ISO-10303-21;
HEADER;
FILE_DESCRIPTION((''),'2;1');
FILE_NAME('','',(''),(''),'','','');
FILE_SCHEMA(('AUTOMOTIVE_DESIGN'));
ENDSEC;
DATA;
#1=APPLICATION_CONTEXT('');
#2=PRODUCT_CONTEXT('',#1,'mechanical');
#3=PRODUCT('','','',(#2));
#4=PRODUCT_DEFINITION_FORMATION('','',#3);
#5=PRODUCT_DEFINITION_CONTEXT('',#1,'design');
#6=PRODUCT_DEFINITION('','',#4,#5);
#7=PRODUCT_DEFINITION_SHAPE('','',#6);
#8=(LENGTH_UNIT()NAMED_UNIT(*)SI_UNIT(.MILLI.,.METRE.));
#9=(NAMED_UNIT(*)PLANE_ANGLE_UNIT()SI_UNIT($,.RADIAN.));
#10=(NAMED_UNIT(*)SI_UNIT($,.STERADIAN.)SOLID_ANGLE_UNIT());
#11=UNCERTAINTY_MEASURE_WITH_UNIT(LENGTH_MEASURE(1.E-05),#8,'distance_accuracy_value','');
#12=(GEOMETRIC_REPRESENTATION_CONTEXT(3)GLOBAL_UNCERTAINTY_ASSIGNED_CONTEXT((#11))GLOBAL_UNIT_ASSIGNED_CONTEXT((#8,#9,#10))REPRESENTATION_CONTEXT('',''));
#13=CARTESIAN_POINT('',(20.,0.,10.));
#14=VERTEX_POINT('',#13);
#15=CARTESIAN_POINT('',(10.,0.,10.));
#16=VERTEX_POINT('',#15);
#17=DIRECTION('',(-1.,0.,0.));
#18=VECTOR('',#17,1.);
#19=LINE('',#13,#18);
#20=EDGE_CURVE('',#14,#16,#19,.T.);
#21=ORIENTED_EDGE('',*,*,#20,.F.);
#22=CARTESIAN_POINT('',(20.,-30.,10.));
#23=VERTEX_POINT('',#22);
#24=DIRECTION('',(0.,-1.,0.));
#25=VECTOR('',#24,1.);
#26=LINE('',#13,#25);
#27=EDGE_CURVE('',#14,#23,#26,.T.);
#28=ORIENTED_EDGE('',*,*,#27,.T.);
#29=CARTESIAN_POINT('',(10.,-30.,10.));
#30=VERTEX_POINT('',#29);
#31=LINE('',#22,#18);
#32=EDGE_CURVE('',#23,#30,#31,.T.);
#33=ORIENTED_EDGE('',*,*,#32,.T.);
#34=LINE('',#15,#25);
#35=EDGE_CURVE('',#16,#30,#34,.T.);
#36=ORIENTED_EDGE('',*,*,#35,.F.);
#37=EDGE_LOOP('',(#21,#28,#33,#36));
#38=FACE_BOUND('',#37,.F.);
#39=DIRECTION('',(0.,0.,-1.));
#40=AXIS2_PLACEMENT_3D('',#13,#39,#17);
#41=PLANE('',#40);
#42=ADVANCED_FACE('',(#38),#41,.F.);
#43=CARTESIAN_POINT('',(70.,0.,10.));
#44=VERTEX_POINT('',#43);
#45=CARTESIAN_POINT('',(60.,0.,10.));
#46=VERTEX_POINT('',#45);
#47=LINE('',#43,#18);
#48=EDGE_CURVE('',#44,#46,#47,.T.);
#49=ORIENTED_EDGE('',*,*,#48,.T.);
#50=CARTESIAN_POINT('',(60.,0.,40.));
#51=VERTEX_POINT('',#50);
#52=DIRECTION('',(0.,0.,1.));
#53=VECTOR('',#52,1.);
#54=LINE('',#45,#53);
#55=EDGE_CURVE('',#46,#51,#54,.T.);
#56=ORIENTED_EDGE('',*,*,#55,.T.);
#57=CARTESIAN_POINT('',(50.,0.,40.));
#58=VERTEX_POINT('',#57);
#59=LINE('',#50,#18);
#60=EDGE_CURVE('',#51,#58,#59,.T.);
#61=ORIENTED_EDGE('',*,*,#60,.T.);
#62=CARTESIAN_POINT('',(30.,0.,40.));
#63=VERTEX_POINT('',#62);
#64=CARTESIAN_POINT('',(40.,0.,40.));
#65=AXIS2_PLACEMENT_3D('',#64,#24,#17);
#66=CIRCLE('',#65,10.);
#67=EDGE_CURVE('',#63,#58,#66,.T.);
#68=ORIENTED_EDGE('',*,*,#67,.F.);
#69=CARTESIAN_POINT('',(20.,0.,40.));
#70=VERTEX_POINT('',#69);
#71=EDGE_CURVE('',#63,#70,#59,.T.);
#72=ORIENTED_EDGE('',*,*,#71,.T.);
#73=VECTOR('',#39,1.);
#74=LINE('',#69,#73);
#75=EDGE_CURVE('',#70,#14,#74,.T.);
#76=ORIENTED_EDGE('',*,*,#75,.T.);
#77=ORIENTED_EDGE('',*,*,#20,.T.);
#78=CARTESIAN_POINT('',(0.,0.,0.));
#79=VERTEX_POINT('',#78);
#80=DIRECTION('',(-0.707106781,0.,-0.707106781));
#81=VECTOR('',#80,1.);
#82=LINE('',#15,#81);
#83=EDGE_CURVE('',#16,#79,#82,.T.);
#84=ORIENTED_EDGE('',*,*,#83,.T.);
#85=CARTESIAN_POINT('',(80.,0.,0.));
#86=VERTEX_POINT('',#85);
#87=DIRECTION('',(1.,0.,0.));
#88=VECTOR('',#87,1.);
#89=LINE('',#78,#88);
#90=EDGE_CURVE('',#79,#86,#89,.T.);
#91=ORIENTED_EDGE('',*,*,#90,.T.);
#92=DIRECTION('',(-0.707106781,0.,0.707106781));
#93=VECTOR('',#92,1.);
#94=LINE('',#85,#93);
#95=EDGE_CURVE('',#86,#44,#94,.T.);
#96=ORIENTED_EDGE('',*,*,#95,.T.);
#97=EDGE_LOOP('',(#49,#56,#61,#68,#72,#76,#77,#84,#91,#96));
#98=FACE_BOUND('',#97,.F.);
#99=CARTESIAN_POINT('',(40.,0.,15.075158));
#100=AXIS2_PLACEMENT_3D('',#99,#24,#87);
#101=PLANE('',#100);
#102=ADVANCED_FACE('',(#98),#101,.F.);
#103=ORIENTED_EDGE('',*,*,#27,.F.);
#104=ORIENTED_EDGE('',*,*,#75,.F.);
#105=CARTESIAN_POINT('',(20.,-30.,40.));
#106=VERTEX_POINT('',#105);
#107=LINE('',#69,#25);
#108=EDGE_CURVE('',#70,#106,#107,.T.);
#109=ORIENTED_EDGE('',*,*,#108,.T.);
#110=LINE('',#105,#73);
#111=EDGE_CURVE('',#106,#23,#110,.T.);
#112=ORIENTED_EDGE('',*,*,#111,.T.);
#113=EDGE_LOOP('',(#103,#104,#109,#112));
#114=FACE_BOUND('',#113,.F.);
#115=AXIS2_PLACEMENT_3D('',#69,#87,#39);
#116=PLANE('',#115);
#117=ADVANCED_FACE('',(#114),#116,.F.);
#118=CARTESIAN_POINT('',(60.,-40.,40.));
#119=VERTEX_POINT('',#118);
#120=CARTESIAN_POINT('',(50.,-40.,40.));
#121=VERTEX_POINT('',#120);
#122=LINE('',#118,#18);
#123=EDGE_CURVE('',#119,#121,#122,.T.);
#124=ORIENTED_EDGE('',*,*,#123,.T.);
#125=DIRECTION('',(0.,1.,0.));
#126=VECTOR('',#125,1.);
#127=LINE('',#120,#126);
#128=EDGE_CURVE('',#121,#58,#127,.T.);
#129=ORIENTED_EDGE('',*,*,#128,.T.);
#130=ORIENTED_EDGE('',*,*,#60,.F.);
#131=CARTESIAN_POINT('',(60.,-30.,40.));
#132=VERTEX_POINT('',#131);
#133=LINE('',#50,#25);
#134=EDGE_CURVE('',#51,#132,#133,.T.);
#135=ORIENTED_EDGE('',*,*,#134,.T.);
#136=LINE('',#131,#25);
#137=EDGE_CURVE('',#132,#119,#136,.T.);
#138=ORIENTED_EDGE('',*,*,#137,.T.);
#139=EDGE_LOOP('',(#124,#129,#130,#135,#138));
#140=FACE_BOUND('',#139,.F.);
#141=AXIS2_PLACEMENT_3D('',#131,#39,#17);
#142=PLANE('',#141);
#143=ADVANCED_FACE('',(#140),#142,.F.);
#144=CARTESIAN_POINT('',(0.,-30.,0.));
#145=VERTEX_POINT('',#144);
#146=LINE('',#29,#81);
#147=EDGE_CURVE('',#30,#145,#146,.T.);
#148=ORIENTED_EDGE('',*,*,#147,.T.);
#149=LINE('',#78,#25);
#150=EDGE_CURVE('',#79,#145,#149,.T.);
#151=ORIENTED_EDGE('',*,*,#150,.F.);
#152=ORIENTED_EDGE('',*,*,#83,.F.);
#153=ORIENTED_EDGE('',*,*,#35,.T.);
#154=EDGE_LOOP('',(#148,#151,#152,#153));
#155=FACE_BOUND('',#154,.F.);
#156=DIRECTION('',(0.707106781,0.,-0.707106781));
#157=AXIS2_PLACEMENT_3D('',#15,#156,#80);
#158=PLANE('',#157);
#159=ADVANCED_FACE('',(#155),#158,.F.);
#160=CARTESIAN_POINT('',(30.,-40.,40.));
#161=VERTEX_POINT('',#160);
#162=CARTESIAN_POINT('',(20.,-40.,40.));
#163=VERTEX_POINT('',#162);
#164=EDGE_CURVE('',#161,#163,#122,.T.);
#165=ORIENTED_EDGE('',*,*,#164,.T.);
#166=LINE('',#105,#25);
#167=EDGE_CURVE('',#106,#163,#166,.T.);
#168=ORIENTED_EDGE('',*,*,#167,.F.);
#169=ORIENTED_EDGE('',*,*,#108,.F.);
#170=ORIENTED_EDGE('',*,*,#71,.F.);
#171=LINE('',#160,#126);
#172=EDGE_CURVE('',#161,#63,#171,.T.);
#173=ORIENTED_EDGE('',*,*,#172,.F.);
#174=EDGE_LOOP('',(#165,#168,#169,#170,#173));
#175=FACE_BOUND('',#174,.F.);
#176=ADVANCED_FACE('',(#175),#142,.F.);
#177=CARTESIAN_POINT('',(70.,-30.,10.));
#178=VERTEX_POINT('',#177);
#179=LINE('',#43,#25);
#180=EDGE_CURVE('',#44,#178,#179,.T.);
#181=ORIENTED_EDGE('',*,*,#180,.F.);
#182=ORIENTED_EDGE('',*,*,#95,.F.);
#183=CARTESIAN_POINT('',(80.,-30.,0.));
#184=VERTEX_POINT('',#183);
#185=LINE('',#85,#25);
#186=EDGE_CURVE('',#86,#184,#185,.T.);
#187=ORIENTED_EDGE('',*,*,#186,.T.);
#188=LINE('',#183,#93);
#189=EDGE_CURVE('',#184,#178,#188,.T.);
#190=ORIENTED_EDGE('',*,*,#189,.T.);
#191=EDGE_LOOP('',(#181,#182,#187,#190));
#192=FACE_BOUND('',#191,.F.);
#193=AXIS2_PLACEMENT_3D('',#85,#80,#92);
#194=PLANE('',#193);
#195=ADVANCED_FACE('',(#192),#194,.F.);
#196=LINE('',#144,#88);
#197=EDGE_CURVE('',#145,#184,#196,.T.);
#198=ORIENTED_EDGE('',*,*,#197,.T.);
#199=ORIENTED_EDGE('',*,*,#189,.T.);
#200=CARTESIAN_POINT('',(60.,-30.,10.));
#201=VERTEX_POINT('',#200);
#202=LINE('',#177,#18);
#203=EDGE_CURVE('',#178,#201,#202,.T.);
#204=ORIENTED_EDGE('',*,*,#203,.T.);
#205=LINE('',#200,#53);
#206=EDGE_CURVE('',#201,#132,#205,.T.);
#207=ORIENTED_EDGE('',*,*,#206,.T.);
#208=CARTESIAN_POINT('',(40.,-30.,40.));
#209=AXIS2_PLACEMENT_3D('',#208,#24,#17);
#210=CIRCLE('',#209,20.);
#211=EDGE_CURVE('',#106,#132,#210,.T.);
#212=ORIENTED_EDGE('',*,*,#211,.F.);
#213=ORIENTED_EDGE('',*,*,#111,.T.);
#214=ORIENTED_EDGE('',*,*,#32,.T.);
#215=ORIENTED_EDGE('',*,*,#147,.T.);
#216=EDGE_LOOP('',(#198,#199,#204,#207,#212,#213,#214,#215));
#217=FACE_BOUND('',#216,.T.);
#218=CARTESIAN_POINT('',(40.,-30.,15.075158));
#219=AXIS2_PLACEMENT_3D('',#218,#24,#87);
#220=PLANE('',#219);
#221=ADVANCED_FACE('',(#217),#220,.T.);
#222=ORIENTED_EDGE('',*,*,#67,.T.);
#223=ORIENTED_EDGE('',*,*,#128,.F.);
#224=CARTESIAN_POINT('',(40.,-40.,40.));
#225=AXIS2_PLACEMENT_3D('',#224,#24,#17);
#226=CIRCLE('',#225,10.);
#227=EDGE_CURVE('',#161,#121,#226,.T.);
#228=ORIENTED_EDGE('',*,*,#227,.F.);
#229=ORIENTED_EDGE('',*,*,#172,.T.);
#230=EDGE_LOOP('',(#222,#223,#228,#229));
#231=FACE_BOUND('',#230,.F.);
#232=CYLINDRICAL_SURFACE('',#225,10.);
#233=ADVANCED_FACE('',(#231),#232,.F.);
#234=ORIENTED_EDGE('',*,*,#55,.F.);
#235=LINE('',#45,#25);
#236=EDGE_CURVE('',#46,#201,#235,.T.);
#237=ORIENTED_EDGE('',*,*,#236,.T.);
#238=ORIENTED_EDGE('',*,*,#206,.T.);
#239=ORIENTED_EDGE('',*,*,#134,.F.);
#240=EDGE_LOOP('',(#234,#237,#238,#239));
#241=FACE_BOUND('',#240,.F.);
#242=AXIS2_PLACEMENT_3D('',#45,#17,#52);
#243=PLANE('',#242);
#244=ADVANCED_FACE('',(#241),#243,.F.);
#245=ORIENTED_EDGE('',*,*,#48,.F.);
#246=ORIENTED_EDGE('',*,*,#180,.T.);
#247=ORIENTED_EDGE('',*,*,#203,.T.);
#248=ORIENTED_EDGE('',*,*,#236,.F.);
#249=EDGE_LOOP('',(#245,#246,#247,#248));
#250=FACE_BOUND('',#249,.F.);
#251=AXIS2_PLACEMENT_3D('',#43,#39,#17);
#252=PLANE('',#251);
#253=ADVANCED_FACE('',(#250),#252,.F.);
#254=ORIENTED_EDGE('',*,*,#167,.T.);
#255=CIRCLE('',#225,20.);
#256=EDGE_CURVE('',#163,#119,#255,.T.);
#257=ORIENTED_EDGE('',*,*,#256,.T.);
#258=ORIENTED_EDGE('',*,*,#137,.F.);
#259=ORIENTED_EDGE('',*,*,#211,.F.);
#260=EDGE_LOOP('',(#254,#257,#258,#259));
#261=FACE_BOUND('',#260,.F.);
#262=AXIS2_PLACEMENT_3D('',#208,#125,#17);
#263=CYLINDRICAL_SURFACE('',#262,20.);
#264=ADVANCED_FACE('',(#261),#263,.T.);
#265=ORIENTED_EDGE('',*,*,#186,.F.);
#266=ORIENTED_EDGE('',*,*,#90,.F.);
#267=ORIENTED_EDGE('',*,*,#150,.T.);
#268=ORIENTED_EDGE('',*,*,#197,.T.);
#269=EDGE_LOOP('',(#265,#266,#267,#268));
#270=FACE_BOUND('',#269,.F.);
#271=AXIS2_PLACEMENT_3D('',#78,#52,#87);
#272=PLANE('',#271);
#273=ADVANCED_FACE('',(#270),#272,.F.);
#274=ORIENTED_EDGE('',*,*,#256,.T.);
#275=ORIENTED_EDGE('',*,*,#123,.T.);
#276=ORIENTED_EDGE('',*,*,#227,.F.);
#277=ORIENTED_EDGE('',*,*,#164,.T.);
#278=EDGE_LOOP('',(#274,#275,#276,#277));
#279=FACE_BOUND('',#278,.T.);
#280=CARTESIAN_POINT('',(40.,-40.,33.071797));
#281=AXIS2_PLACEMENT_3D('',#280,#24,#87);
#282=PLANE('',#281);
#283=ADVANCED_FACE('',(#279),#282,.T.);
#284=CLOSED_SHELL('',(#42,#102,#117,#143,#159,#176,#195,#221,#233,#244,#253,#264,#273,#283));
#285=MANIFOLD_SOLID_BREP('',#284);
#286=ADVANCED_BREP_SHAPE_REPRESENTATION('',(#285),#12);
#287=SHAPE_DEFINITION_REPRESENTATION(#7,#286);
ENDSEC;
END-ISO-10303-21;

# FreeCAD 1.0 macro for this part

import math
import FreeCAD as App
import Part
import Sketcher
from FreeCAD import Vector

doc = App.newDocument("Part")
body = doc.addObject("PartDesign::Body", "Body")

# Sketch on XZ plane
sketch1 = body.newObject("Sketcher::SketchObject", "Sketch")
sketch1.AttachmentSupport = (doc.getObject("XZ_Plane"), [""])
sketch1.MapMode = "FlatFace"
sketch1.addGeometry(Part.LineSegment(Vector(10, 10, 0), Vector(0, 0, 0)), False)
sketch1.addGeometry(Part.LineSegment(Vector(0, 0, 0), Vector(80, 0, 0)), False)
sketch1.addGeometry(Part.LineSegment(Vector(80, 0, 0), Vector(70, 10, 0)), False)
sketch1.addGeometry(Part.LineSegment(Vector(70, 10, 0), Vector(60, 10, 0)), False)
sketch1.addGeometry(Part.LineSegment(Vector(60, 10, 0), Vector(60, 40, 0)), False)
sketch1.addGeometry(Part.LineSegment(Vector(60, 40, 0), Vector(20, 40, 0)), False)
sketch1.addGeometry(Part.LineSegment(Vector(20, 40, 0), Vector(20, 10, 0)), False)
sketch1.addGeometry(Part.LineSegment(Vector(20, 10, 0), Vector(10, 10, 0)), False)
sketch1.addConstraint(Sketcher.Constraint("Coincident", 0, 2, 1, 1))
sketch1.addConstraint(Sketcher.Constraint("Coincident", 1, 2, 2, 1))
sketch1.addConstraint(Sketcher.Constraint("Coincident", 2, 2, 3, 1))
sketch1.addConstraint(Sketcher.Constraint("Coincident", 3, 2, 4, 1))
sketch1.addConstraint(Sketcher.Constraint("Coincident", 4, 2, 5, 1))
sketch1.addConstraint(Sketcher.Constraint("Coincident", 5, 2, 6, 1))
sketch1.addConstraint(Sketcher.Constraint("Coincident", 6, 2, 7, 1))
sketch1.addConstraint(Sketcher.Constraint("Coincident", 7, 2, 0, 1))
sketch1.addConstraint(Sketcher.Constraint("Horizontal", 1))
sketch1.addConstraint(Sketcher.Constraint("Horizontal", 3))
sketch1.addConstraint(Sketcher.Constraint("Vertical", 4))
sketch1.addConstraint(Sketcher.Constraint("Horizontal", 5))
sketch1.addConstraint(Sketcher.Constraint("Vertical", 6))
sketch1.addConstraint(Sketcher.Constraint("Horizontal", 7))
sketch1.addConstraint(Sketcher.Constraint("Coincident", 0, 2, -1, 1))
sketch1.addConstraint(Sketcher.Constraint("Perpendicular", 0, 2))
sketch1.addConstraint(Sketcher.Constraint("Horizontal", 3, 2, 6, 2))
sketch1.addConstraint(Sketcher.Constraint("Equal", 3, 7))
sketch1.addConstraint(Sketcher.Constraint("Equal", 0, 2))
sketch1.addConstraint(Sketcher.Constraint("DistanceX", 1, 1, 1, 2, 80.0))
sketch1.addConstraint(Sketcher.Constraint("DistanceX", 3, 2, 3, 1, 10.0))
sketch1.addConstraint(Sketcher.Constraint("DistanceX", 5, 2, 5, 1, 40.0))
sketch1.addConstraint(Sketcher.Constraint("DistanceY", 4, 1, 4, 2, 30.0))
pad1 = body.newObject("PartDesign::Pad", "Pad")
pad1.Profile = sketch1
pad1.Length = 30

# Sketch on XZ plane
sketch2 = body.newObject("Sketcher::SketchObject", "Sketch001")
sketch2.AttachmentSupport = (doc.getObject("XZ_Plane"), [""])
sketch2.MapMode = "FlatFace"
sketch2.AttachmentOffset = App.Placement(Vector(0, 0, 30), App.Rotation())
sketch2.addGeometry(Part.LineSegment(Vector(60, 40, 0), Vector(20, 40, 0)), False)
sketch2.addGeometry(Part.ArcOfCircle(Part.Circle(Vector(40, 40, 0), Vector(0, 0, 1), 20), math.radians(180), math.radians(360)), False)
sketch2.addConstraint(Sketcher.Constraint("Coincident", 0, 1, 1, 2))
sketch2.addConstraint(Sketcher.Constraint("Coincident", 1, 1, 0, 2))
sketch2.addConstraint(Sketcher.Constraint("Horizontal", 0))
sketch2.addConstraint(Sketcher.Constraint("Horizontal", 1, 3, 0, 1))
sketch2.addConstraint(Sketcher.Constraint("Radius", 1, 20.0))
sketch2.addConstraint(Sketcher.Constraint("DistanceX", -1, 1, 1, 3, 40.0))
sketch2.addConstraint(Sketcher.Constraint("DistanceY", -1, 1, 1, 3, 40.0))
pad2 = body.newObject("PartDesign::Pad", "Pad001")
pad2.Profile = sketch2
pad2.Length = 10

# Sketch on XZ plane
sketch3 = body.newObject("Sketcher::SketchObject", "Sketch002")
sketch3.AttachmentSupport = (doc.getObject("XZ_Plane"), [""])
sketch3.MapMode = "FlatFace"
sketch3.AttachmentOffset = App.Placement(Vector(0, 0, 40), App.Rotation())
sketch3.addGeometry(Part.ArcOfCircle(Part.Circle(Vector(40, 40, 0), Vector(0, 0, 1), 10), math.radians(180), math.radians(360)), False)
sketch3.addGeometry(Part.LineSegment(Vector(50, 40, 0), Vector(30, 40, 0)), False)
sketch3.addConstraint(Sketcher.Constraint("Coincident", 0, 1, 1, 2))
sketch3.addConstraint(Sketcher.Constraint("Coincident", 1, 1, 0, 2))
sketch3.addConstraint(Sketcher.Constraint("Horizontal", 1))
sketch3.addConstraint(Sketcher.Constraint("Radius", 0, 10.0))
sketch3.addConstraint(Sketcher.Constraint("DistanceX", -1, 1, 0, 3, 40.0))
sketch3.addConstraint(Sketcher.Constraint("DistanceY", -1, 1, 0, 3, 40.0))
sketch3.addConstraint(Sketcher.Constraint("DistanceY", -1, 1, 0, 1, 40.0))
pocket1 = body.newObject("PartDesign::Pocket", "Pocket")
pocket1.Profile = sketch3
pocket1.Length = 43.3

doc.recompute()
